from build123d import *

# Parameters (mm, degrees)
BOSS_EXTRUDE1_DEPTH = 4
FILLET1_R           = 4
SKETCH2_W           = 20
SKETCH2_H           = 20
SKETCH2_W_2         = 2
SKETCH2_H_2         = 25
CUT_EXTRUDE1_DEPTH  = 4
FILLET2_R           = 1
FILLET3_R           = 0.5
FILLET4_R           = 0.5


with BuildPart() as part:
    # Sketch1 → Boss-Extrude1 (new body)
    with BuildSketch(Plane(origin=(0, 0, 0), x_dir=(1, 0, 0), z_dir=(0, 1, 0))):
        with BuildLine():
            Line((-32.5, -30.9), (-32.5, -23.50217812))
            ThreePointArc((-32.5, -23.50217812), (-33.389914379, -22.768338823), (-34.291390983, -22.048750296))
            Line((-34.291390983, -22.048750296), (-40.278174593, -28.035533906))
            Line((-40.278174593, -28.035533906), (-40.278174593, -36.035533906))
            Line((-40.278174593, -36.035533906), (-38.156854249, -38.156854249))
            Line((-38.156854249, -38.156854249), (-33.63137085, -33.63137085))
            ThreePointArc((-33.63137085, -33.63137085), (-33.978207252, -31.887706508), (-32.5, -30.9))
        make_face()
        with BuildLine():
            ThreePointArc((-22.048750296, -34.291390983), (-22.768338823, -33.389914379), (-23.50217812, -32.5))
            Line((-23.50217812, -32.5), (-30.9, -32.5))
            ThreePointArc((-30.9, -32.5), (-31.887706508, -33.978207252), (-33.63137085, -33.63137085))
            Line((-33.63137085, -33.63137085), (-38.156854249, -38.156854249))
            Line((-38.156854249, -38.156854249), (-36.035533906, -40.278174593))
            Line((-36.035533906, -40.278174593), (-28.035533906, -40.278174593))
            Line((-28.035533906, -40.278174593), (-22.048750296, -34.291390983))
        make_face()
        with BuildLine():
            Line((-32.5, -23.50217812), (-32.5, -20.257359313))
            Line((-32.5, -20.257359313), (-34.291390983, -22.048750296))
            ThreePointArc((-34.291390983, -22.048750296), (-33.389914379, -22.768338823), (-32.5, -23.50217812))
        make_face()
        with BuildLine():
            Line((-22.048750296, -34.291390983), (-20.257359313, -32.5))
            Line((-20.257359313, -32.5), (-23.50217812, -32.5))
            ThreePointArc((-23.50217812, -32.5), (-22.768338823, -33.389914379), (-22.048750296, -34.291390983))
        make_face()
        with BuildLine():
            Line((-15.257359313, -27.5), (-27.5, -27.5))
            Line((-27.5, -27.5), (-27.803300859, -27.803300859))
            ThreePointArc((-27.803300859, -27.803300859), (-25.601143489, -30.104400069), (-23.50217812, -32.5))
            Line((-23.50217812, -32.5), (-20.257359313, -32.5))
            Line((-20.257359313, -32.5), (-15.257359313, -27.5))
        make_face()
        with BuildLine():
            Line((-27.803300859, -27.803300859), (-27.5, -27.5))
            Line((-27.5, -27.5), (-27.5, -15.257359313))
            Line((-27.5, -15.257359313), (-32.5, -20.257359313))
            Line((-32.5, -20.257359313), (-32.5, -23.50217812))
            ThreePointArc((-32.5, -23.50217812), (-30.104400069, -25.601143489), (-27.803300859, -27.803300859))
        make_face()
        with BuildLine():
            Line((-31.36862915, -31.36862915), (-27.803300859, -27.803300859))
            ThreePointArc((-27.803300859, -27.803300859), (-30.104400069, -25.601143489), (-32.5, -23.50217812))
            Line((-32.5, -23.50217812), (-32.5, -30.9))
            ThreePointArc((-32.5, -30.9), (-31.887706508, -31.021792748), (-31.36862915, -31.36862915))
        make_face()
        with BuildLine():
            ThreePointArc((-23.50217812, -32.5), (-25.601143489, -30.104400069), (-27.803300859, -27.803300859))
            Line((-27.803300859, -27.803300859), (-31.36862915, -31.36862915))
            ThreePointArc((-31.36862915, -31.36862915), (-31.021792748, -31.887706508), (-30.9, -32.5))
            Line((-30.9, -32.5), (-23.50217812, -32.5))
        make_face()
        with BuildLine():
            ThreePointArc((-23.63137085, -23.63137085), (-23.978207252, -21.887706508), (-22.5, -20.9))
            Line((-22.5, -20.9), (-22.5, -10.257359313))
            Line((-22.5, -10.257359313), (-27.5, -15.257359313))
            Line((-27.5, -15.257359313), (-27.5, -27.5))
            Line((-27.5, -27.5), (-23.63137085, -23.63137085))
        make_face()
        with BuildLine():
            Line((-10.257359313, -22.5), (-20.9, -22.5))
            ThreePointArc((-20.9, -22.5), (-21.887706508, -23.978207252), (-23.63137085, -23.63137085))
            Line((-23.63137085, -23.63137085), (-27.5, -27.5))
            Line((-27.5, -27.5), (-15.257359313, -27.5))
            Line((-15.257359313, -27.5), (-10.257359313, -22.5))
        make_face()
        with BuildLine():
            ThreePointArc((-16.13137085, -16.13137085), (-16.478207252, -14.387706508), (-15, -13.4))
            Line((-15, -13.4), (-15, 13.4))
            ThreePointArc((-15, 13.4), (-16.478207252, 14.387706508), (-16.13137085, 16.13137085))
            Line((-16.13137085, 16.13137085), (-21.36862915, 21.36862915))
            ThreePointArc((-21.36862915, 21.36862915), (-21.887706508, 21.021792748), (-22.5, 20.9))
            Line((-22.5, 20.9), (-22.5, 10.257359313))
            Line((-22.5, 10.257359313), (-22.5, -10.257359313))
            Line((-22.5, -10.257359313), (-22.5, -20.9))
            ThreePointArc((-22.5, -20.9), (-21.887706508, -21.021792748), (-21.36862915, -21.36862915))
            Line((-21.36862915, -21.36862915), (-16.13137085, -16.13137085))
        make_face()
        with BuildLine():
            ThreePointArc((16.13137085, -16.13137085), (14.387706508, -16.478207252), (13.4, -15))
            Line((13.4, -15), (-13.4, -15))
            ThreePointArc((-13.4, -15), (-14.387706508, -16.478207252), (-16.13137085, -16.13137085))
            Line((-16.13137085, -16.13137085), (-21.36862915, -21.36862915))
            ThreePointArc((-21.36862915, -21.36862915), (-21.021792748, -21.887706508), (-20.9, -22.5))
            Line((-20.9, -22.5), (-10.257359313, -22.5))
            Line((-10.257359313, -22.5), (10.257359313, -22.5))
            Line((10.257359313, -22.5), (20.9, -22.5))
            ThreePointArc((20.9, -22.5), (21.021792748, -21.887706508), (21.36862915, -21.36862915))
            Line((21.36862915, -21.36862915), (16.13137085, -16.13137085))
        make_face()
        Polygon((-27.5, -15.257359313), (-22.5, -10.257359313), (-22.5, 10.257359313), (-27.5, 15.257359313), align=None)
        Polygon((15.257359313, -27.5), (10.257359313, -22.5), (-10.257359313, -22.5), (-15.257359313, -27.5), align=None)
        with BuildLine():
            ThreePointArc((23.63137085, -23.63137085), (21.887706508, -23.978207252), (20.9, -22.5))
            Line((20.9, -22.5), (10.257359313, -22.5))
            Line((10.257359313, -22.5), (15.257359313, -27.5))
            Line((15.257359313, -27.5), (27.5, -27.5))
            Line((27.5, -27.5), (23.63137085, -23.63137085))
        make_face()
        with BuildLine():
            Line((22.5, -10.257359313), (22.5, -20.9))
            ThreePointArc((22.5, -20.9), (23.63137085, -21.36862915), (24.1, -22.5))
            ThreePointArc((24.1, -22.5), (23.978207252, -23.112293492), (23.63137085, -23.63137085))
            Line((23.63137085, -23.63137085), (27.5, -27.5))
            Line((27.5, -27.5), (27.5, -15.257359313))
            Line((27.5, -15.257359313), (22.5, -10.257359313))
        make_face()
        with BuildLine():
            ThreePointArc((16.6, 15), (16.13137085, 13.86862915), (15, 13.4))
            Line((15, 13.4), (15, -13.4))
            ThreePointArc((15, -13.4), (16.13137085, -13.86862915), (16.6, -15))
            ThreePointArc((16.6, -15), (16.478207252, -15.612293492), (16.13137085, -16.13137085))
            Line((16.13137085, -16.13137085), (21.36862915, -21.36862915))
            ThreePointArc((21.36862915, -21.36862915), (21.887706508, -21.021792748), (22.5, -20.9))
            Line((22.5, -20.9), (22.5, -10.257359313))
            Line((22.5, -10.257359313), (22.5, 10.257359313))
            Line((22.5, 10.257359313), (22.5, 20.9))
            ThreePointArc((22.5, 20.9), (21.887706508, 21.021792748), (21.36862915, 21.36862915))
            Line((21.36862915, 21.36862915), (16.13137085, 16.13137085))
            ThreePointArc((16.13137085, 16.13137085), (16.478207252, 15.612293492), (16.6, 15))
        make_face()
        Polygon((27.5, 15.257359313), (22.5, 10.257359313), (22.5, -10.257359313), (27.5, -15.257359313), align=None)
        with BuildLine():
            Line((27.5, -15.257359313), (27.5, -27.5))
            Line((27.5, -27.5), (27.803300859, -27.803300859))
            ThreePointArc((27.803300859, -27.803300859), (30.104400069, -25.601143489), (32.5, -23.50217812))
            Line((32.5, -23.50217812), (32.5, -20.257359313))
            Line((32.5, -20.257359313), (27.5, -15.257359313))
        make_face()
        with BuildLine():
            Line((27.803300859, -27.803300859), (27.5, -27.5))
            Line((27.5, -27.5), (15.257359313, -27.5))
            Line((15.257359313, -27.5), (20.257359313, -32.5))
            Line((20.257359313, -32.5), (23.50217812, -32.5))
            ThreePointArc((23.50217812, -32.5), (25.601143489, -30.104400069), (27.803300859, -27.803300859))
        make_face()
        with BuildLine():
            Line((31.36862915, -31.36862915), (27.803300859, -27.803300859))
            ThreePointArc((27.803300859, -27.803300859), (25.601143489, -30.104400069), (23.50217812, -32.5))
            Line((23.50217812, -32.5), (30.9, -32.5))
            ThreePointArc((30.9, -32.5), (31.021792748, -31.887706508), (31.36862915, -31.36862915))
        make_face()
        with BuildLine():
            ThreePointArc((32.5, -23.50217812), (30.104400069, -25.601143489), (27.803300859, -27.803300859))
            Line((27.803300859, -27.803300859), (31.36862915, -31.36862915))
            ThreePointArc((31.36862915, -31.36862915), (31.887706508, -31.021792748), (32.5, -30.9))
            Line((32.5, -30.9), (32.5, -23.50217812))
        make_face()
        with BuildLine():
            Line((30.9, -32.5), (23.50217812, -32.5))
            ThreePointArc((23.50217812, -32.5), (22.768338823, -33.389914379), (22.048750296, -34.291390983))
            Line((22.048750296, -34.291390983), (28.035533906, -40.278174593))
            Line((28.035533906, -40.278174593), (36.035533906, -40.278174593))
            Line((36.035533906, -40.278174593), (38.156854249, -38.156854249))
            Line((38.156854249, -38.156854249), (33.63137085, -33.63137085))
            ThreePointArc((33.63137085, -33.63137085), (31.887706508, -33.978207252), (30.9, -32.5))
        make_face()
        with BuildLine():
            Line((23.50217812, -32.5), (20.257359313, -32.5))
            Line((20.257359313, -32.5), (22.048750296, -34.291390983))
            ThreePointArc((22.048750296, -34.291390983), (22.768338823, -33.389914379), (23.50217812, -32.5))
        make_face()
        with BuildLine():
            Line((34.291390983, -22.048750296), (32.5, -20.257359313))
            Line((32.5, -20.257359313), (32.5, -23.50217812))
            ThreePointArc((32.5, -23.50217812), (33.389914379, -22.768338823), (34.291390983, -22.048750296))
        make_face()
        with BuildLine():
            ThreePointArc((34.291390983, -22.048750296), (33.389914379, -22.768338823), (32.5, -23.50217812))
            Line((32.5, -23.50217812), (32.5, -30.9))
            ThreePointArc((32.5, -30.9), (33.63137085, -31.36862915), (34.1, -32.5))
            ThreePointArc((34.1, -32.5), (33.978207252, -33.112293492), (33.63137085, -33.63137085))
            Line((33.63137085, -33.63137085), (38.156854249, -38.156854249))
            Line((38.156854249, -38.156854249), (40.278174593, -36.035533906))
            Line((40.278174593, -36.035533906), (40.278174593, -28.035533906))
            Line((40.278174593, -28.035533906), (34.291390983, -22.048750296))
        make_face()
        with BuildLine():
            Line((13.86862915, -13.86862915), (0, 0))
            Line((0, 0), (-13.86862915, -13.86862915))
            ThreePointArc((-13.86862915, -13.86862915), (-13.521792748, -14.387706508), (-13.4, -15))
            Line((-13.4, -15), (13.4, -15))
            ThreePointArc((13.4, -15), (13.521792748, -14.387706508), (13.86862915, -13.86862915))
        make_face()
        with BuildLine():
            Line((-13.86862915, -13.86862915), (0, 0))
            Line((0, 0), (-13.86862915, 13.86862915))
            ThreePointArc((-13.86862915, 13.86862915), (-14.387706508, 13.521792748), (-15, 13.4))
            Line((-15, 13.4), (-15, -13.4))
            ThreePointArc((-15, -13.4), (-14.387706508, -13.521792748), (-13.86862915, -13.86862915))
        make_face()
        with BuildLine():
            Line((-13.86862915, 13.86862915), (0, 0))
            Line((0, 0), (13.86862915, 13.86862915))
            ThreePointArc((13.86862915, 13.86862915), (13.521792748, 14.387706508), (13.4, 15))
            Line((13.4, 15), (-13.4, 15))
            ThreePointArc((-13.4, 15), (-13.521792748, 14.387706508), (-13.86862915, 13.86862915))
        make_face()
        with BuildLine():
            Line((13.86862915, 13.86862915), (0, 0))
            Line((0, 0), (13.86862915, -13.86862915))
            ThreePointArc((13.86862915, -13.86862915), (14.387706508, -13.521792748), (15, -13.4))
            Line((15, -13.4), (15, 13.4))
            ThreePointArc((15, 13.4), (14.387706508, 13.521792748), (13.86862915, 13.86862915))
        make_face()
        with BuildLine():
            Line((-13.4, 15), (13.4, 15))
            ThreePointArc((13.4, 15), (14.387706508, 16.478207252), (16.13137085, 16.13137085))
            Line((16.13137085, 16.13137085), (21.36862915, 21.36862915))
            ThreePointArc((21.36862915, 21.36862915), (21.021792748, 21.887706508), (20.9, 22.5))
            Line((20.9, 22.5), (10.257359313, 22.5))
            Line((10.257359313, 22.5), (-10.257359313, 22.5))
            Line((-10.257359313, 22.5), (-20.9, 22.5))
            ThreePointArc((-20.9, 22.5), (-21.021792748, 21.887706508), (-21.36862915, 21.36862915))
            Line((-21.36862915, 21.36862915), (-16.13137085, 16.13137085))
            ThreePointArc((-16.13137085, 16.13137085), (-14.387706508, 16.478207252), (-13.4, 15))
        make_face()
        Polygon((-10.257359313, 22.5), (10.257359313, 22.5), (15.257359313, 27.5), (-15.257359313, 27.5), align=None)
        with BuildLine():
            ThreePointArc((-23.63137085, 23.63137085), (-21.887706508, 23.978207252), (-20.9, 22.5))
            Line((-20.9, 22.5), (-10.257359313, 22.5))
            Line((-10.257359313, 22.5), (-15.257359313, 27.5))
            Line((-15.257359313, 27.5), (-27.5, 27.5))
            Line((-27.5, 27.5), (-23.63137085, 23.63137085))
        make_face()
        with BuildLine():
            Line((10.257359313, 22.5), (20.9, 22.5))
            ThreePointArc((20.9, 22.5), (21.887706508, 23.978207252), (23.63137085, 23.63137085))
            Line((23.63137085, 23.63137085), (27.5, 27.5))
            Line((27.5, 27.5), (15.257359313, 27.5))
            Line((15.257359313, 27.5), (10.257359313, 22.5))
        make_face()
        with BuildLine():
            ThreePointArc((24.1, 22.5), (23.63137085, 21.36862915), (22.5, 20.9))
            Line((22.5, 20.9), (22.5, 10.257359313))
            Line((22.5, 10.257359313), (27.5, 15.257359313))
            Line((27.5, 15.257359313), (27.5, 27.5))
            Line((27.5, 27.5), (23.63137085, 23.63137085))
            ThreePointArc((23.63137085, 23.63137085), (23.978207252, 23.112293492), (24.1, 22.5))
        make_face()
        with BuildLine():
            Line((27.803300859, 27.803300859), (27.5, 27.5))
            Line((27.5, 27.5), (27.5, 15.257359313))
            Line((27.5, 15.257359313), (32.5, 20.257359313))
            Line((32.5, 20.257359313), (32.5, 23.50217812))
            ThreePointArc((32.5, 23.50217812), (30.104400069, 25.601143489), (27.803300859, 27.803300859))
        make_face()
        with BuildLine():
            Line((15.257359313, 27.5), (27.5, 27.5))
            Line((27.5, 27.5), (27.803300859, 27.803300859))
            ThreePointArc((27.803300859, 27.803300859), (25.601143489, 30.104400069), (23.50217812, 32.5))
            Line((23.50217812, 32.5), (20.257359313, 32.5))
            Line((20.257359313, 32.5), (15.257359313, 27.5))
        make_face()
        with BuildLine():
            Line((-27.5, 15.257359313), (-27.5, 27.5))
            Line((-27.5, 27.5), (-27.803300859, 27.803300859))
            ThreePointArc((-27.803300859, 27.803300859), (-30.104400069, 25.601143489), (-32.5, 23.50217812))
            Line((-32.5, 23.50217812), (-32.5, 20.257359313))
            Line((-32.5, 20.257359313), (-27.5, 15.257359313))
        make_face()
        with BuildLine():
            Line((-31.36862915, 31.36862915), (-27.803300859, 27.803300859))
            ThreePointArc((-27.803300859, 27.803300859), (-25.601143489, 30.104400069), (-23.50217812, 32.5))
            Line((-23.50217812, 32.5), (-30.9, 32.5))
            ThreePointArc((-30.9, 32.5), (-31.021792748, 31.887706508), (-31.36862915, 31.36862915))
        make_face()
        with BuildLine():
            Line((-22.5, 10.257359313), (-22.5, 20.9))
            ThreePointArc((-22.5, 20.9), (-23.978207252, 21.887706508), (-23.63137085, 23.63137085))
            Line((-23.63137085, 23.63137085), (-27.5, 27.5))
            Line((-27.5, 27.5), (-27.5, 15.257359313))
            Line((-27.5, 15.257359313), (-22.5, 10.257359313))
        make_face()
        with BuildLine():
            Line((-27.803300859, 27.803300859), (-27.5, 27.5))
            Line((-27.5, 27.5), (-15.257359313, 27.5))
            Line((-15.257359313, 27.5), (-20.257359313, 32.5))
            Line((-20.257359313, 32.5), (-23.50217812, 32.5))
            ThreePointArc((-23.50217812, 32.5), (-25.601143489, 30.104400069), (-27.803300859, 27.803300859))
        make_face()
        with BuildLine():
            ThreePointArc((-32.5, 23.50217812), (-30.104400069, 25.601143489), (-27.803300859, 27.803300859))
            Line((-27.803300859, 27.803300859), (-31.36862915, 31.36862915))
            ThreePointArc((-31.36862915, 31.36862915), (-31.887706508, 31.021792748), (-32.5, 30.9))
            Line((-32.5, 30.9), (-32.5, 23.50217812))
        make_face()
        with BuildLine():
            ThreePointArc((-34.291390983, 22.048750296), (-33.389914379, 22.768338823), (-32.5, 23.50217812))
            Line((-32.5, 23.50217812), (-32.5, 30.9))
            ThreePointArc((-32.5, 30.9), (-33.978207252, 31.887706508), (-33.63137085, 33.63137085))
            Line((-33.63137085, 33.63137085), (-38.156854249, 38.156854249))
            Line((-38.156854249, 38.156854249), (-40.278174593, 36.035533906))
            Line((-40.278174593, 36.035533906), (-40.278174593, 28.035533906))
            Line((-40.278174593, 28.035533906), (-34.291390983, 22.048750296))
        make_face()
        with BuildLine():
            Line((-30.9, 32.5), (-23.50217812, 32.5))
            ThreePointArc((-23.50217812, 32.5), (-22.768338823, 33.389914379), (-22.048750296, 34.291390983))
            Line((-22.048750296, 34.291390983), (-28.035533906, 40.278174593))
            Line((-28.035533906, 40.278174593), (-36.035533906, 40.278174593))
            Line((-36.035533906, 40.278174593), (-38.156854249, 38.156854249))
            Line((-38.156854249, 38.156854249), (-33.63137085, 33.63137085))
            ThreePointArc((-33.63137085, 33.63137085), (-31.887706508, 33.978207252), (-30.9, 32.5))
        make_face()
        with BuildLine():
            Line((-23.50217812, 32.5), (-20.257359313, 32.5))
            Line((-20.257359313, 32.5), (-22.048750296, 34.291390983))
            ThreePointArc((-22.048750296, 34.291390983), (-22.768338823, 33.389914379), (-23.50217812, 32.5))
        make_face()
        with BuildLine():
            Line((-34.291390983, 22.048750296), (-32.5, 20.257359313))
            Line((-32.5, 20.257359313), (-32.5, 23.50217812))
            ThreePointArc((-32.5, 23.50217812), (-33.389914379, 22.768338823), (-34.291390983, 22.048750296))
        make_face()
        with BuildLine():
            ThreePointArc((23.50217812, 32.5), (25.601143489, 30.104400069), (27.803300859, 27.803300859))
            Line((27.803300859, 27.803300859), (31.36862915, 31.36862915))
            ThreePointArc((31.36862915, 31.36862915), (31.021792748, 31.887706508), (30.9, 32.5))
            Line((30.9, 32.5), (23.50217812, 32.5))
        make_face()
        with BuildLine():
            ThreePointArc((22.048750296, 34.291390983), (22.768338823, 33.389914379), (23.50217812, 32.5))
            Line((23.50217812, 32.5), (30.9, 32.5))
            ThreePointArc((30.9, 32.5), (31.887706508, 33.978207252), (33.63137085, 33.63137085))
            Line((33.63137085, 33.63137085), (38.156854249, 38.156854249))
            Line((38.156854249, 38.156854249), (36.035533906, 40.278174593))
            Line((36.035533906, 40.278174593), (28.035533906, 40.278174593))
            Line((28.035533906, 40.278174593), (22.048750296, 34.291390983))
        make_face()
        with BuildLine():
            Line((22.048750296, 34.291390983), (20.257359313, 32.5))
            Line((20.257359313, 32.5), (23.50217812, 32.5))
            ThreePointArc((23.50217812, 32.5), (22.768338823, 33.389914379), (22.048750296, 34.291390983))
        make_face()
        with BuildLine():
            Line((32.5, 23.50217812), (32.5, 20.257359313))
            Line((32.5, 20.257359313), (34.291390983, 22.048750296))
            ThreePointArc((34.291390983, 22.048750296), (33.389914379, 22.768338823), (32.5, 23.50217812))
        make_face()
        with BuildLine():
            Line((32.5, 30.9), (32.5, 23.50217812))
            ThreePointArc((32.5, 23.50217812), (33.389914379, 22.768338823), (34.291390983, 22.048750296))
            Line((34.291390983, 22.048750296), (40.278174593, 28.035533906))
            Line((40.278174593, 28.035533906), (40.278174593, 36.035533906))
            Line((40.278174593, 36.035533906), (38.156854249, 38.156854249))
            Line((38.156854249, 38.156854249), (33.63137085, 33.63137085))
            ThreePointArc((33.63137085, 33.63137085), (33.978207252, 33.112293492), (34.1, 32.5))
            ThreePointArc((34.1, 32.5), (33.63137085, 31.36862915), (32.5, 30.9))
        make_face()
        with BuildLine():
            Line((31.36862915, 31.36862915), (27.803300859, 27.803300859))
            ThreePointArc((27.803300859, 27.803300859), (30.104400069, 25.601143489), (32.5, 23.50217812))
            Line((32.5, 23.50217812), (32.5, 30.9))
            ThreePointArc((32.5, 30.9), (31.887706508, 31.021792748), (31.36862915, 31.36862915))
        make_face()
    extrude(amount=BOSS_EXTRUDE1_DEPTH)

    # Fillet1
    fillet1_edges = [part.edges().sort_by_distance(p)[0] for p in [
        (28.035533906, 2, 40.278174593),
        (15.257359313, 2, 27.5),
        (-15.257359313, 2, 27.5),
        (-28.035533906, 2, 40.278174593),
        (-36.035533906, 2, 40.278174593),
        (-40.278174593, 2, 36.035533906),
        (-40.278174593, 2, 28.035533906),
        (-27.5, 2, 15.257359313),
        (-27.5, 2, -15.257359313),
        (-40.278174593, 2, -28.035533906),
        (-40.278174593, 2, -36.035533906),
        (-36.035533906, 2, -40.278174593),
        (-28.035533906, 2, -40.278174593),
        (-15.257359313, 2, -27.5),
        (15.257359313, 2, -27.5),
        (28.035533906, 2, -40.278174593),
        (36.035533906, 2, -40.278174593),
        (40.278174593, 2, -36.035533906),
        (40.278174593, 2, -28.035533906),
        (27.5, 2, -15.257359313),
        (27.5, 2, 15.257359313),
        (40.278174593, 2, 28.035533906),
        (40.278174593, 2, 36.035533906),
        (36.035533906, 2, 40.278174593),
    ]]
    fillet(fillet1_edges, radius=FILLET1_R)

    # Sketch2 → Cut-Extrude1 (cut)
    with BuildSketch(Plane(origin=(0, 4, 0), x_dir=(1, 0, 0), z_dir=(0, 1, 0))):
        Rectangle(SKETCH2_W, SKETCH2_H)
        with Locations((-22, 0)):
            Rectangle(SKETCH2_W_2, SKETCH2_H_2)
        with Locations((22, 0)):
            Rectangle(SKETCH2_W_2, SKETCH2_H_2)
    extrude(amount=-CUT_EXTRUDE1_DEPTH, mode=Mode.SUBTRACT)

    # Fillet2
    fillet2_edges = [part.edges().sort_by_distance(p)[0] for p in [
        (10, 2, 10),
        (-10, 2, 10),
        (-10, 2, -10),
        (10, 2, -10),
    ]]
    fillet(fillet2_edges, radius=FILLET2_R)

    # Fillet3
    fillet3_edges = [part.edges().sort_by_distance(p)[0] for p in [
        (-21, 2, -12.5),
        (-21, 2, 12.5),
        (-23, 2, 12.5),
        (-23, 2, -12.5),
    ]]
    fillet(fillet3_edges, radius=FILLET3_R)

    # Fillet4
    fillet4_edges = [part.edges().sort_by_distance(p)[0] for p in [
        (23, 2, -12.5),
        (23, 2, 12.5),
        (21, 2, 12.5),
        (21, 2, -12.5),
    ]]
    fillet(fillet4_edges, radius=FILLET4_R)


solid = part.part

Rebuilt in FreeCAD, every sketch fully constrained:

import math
import FreeCAD as App
import Part
import Sketcher
from FreeCAD import Vector
Q = App.Units.Quantity


def edges_at(feature, points):
    """Names of the edges that pass closest to the given points."""
    edges = feature.Shape.Edges
    near = lambda p: min(range(len(edges)), key=lambda i: edges[i].distToShape(Part.Vertex(*p))[0])
    return sorted({f"Edge{near(p) + 1}" for p in points})

doc = App.newDocument("Part")
params = doc.addObject("Spreadsheet::Sheet", "Params")
for row, (alias, value) in enumerate([
    ("sketch1_radius", "1.6 mm"),
    ("sketch1_width", "8 mm"),
    ("sketch1_length", "3 mm"),
    ("pad1_length", "4 mm"),
    ("fillet_radius", "4 mm"),
    ("sketch2_width", "20 mm"),
    ("sketch2_width2", "2 mm"),
    ("sketch2_height", "25 mm"),
    ("pocket1_length", "4 mm"),
    ("fillet2_radius", "1 mm"),
    ("fillet3_radius", "0.5 mm"),
    ("fillet4_radius", "0.5 mm"),
], start=1):
    params.set(f"A{row}", alias)
    params.set(f"B{row}", "=" + value)
    params.setAlias(f"B{row}", alias)

body = doc.addObject("PartDesign::Body", "Body")

# Sketch on XZ plane
sketch1 = doc.addObject("Sketcher::SketchObject", "Sketch")
body.addObject(sketch1)
sketch1.AttachmentSupport = (doc.XZ_Plane, [""])
sketch1.MapMode = "FlatFace"
sketch1.addGeometry([
    Part.LineSegment(Vector(-40.278175, 28.035534, 0), Vector(-40.278175, 36.035534, 0)),  # 0
    Part.LineSegment(Vector(-40.278175, 36.035534, 0), Vector(-38.156854, 38.156854, 0)),  # 1
    Part.LineSegment(Vector(-38.156854, 38.156854, 0), Vector(-36.035534, 40.278175, 0)),  # 2
    Part.LineSegment(Vector(-36.035534, 40.278175, 0), Vector(-28.035534, 40.278175, 0)),  # 3
    Part.LineSegment(Vector(-28.035534, 40.278175, 0), Vector(-15.257359, 27.5, 0)),  # 4
    Part.LineSegment(Vector(-15.257359, 27.5, 0), Vector(15.257359, 27.5, 0)),  # 5
    Part.LineSegment(Vector(15.257359, 27.5, 0), Vector(28.035534, 40.278175, 0)),  # 6
    Part.LineSegment(Vector(28.035534, 40.278175, 0), Vector(36.035534, 40.278175, 0)),  # 7
    Part.LineSegment(Vector(36.035534, 40.278175, 0), Vector(38.156854, 38.156854, 0)),  # 8
    Part.LineSegment(Vector(38.156854, 38.156854, 0), Vector(40.278175, 36.035534, 0)),  # 9
    Part.LineSegment(Vector(40.278175, 36.035534, 0), Vector(40.278175, 28.035534, 0)),  # 10
    Part.LineSegment(Vector(40.278175, 28.035534, 0), Vector(27.5, 15.257359, 0)),  # 11
    Part.LineSegment(Vector(27.5, 15.257359, 0), Vector(27.5, -15.257359, 0)),  # 12
    Part.LineSegment(Vector(27.5, -15.257359, 0), Vector(40.278175, -28.035534, 0)),  # 13
    Part.LineSegment(Vector(40.278175, -28.035534, 0), Vector(40.278175, -36.035534, 0)),  # 14
    Part.LineSegment(Vector(40.278175, -36.035534, 0), Vector(38.156854, -38.156854, 0)),  # 15
    Part.LineSegment(Vector(38.156854, -38.156854, 0), Vector(36.035534, -40.278175, 0)),  # 16
    Part.LineSegment(Vector(36.035534, -40.278175, 0), Vector(28.035534, -40.278175, 0)),  # 17
    Part.LineSegment(Vector(28.035534, -40.278175, 0), Vector(15.257359, -27.5, 0)),  # 18
    Part.LineSegment(Vector(15.257359, -27.5, 0), Vector(-15.257359, -27.5, 0)),  # 19
    Part.LineSegment(Vector(-15.257359, -27.5, 0), Vector(-28.035534, -40.278175, 0)),  # 20
    Part.LineSegment(Vector(-28.035534, -40.278175, 0), Vector(-36.035534, -40.278175, 0)),  # 21
    Part.LineSegment(Vector(-36.035534, -40.278175, 0), Vector(-38.156854, -38.156854, 0)),  # 22
    Part.LineSegment(Vector(-38.156854, -38.156854, 0), Vector(-40.278175, -36.035534, 0)),  # 23
    Part.LineSegment(Vector(-40.278175, -36.035534, 0), Vector(-40.278175, -28.035534, 0)),  # 24
    Part.LineSegment(Vector(-40.278175, -28.035534, 0), Vector(-27.5, -15.257359, 0)),  # 25
    Part.LineSegment(Vector(-27.5, -15.257359, 0), Vector(-27.5, 15.257359, 0)),  # 26
    Part.LineSegment(Vector(-27.5, 15.257359, 0), Vector(-40.278175, 28.035534, 0)),  # 27
    Part.ArcOfCircle(Part.Circle(Vector(-32.5, 32.5, 0), Vector(0, 0, 1), 1.6), math.radians(0), math.radians(135)),  # 28
    Part.ArcOfCircle(Part.Circle(Vector(-32.5, 32.5, 0), Vector(0, 0, 1), 1.6), math.radians(135), math.radians(270)),  # 29
    Part.ArcOfCircle(Part.Circle(Vector(-32.5, 32.5, 0), Vector(0, 0, 1), 1.6), math.radians(-90), math.radians(-45)),  # 30
    Part.ArcOfCircle(Part.Circle(Vector(-32.5, 32.5, 0), Vector(0, 0, 1), 1.6), math.radians(-45), math.radians(0)),  # 31
    Part.ArcOfCircle(Part.Circle(Vector(32.5, -32.5, 0), Vector(0, 0, 1), 1.6), math.radians(135), math.radians(180)),  # 32
    Part.ArcOfCircle(Part.Circle(Vector(32.5, -32.5, 0), Vector(0, 0, 1), 1.6), math.radians(180), math.radians(315)),  # 33
    Part.ArcOfCircle(Part.Circle(Vector(32.5, -32.5, 0), Vector(0, 0, 1), 1.6), math.radians(-45), math.radians(0)),  # 34
    Part.ArcOfCircle(Part.Circle(Vector(32.5, -32.5, 0), Vector(0, 0, 1), 1.6), math.radians(0), math.radians(90)),  # 35
    Part.ArcOfCircle(Part.Circle(Vector(32.5, -32.5, 0), Vector(0, 0, 1), 1.6), math.radians(90), math.radians(135)),  # 36
    Part.ArcOfCircle(Part.Circle(Vector(-32.5, -32.5, 0), Vector(0, 0, 1), 1.6), math.radians(0), math.radians(45)),  # 37
    Part.ArcOfCircle(Part.Circle(Vector(-32.5, -32.5, 0), Vector(0, 0, 1), 1.6), math.radians(45), math.radians(90)),  # 38
    Part.ArcOfCircle(Part.Circle(Vector(-32.5, -32.5, 0), Vector(0, 0, 1), 1.6), math.radians(90), math.radians(225)),  # 39
    Part.ArcOfCircle(Part.Circle(Vector(-32.5, -32.5, 0), Vector(0, 0, 1), 1.6), math.radians(-135), math.radians(0)),  # 40
    Part.ArcOfCircle(Part.Circle(Vector(-22.5, -22.5, 0), Vector(0, 0, 1), 1.6), math.radians(-135), math.radians(0)),  # 41
    Part.ArcOfCircle(Part.Circle(Vector(-22.5, -22.5, 0), Vector(0, 0, 1), 1.6), math.radians(0), math.radians(45)),  # 42
    Part.ArcOfCircle(Part.Circle(Vector(-22.5, -22.5, 0), Vector(0, 0, 1), 1.6), math.radians(45), math.radians(90)),  # 43
    Part.ArcOfCircle(Part.Circle(Vector(-22.5, -22.5, 0), Vector(0, 0, 1), 1.6), math.radians(90), math.radians(225)),  # 44
    Part.ArcOfCircle(Part.Circle(Vector(22.5, -22.5, 0), Vector(0, 0, 1), 1.6), math.radians(90), math.radians(135)),  # 45
    Part.ArcOfCircle(Part.Circle(Vector(22.5, -22.5, 0), Vector(0, 0, 1), 1.6), math.radians(135), math.radians(180)),  # 46
    Part.ArcOfCircle(Part.Circle(Vector(22.5, -22.5, 0), Vector(0, 0, 1), 1.6), math.radians(180), math.radians(315)),  # 47
    Part.ArcOfCircle(Part.Circle(Vector(22.5, -22.5, 0), Vector(0, 0, 1), 1.6), math.radians(-45), math.radians(0)),  # 48
    Part.ArcOfCircle(Part.Circle(Vector(22.5, -22.5, 0), Vector(0, 0, 1), 1.6), math.radians(0), math.radians(90)),  # 49
    Part.ArcOfCircle(Part.Circle(Vector(15, -15, 0), Vector(0, 0, 1), 1.6), math.radians(-45), math.radians(0)),  # 50
    Part.ArcOfCircle(Part.Circle(Vector(15, -15, 0), Vector(0, 0, 1), 1.6), math.radians(0), math.radians(90)),  # 51
    Part.ArcOfCircle(Part.Circle(Vector(15, -15, 0), Vector(0, 0, 1), 1.6), math.radians(90), math.radians(135)),  # 52
    Part.ArcOfCircle(Part.Circle(Vector(15, -15, 0), Vector(0, 0, 1), 1.6), math.radians(135), math.radians(180)),  # 53
    Part.ArcOfCircle(Part.Circle(Vector(15, -15, 0), Vector(0, 0, 1), 1.6), math.radians(180), math.radians(315)),  # 54
    Part.ArcOfCircle(Part.Circle(Vector(-15, -15, 0), Vector(0, 0, 1), 1.6), math.radians(0), math.radians(45)),  # 55
    Part.ArcOfCircle(Part.Circle(Vector(-15, -15, 0), Vector(0, 0, 1), 1.6), math.radians(45), math.radians(90)),  # 56
    Part.ArcOfCircle(Part.Circle(Vector(-15, -15, 0), Vector(0, 0, 1), 1.6), math.radians(90), math.radians(225)),  # 57
    Part.ArcOfCircle(Part.Circle(Vector(-15, -15, 0), Vector(0, 0, 1), 1.6), math.radians(-135), math.radians(0)),  # 58
    Part.ArcOfCircle(Part.Circle(Vector(15, 15, 0), Vector(0, 0, 1), 1.6), math.radians(-90), math.radians(0)),  # 59
    Part.ArcOfCircle(Part.Circle(Vector(15, 15, 0), Vector(0, 0, 1), 1.6), math.radians(0), math.radians(45)),  # 60
    Part.ArcOfCircle(Part.Circle(Vector(15, 15, 0), Vector(0, 0, 1), 1.6), math.radians(45), math.radians(180)),  # 61
    Part.ArcOfCircle(Part.Circle(Vector(15, 15, 0), Vector(0, 0, 1), 1.6), math.radians(180), math.radians(225)),  # 62
    Part.ArcOfCircle(Part.Circle(Vector(15, 15, 0), Vector(0, 0, 1), 1.6), math.radians(-135), math.radians(-90)),  # 63
    Part.ArcOfCircle(Part.Circle(Vector(-15, 15, 0), Vector(0, 0, 1), 1.6), math.radians(-45), math.radians(0)),  # 64
    Part.ArcOfCircle(Part.Circle(Vector(-15, 15, 0), Vector(0, 0, 1), 1.6), math.radians(0), math.radians(135)),  # 65
    Part.ArcOfCircle(Part.Circle(Vector(-15, 15, 0), Vector(0, 0, 1), 1.6), math.radians(135), math.radians(270)),  # 66
    Part.ArcOfCircle(Part.Circle(Vector(-15, 15, 0), Vector(0, 0, 1), 1.6), math.radians(-90), math.radians(-45)),  # 67
    Part.ArcOfCircle(Part.Circle(Vector(32.5, 32.5, 0), Vector(0, 0, 1), 1.6), math.radians(45), math.radians(180)),  # 68
    Part.ArcOfCircle(Part.Circle(Vector(32.5, 32.5, 0), Vector(0, 0, 1), 1.6), math.radians(180), math.radians(225)),  # 69
    Part.ArcOfCircle(Part.Circle(Vector(32.5, 32.5, 0), Vector(0, 0, 1), 1.6), math.radians(-135), math.radians(-90)),  # 70
    Part.ArcOfCircle(Part.Circle(Vector(32.5, 32.5, 0), Vector(0, 0, 1), 1.6), math.radians(-90), math.radians(0)),  # 71
    Part.ArcOfCircle(Part.Circle(Vector(32.5, 32.5, 0), Vector(0, 0, 1), 1.6), math.radians(0), math.radians(45)),  # 72
    Part.ArcOfCircle(Part.Circle(Vector(22.5, 22.5, 0), Vector(0, 0, 1), 1.6), math.radians(-90), math.radians(0)),  # 73
    Part.ArcOfCircle(Part.Circle(Vector(22.5, 22.5, 0), Vector(0, 0, 1), 1.6), math.radians(0), math.radians(45)),  # 74
    Part.ArcOfCircle(Part.Circle(Vector(22.5, 22.5, 0), Vector(0, 0, 1), 1.6), math.radians(45), math.radians(180)),  # 75
    Part.ArcOfCircle(Part.Circle(Vector(22.5, 22.5, 0), Vector(0, 0, 1), 1.6), math.radians(180), math.radians(225)),  # 76
    Part.ArcOfCircle(Part.Circle(Vector(22.5, 22.5, 0), Vector(0, 0, 1), 1.6), math.radians(-135), math.radians(-90)),  # 77
    Part.ArcOfCircle(Part.Circle(Vector(-22.5, 22.5, 0), Vector(0, 0, 1), 1.6), math.radians(0), math.radians(135)),  # 78
    Part.ArcOfCircle(Part.Circle(Vector(-22.5, 22.5, 0), Vector(0, 0, 1), 1.6), math.radians(135), math.radians(270)),  # 79
    Part.ArcOfCircle(Part.Circle(Vector(-22.5, 22.5, 0), Vector(0, 0, 1), 1.6), math.radians(-90), math.radians(-45)),  # 80
    Part.ArcOfCircle(Part.Circle(Vector(-22.5, 22.5, 0), Vector(0, 0, 1), 1.6), math.radians(-45), math.radians(0)),  # 81
], False)
sketch1.addConstraint([
    Sketcher.Constraint("Coincident", 0, 2, 1, 1),
    Sketcher.Constraint("Coincident", 1, 2, 2, 1),
    Sketcher.Constraint("Coincident", 2, 2, 3, 1),
    Sketcher.Constraint("Coincident", 3, 2, 4, 1),
    Sketcher.Constraint("Coincident", 4, 2, 5, 1),
    Sketcher.Constraint("Coincident", 5, 2, 6, 1),
    Sketcher.Constraint("Coincident", 6, 2, 7, 1),
    Sketcher.Constraint("Coincident", 7, 2, 8, 1),
    Sketcher.Constraint("Coincident", 8, 2, 9, 1),
    Sketcher.Constraint("Coincident", 9, 2, 10, 1),
    Sketcher.Constraint("Coincident", 10, 2, 11, 1),
    Sketcher.Constraint("Coincident", 11, 2, 12, 1),
    Sketcher.Constraint("Coincident", 12, 2, 13, 1),
    Sketcher.Constraint("Coincident", 13, 2, 14, 1),
    Sketcher.Constraint("Coincident", 14, 2, 15, 1),
    Sketcher.Constraint("Coincident", 15, 2, 16, 1),
    Sketcher.Constraint("Coincident", 16, 2, 17, 1),
    Sketcher.Constraint("Coincident", 17, 2, 18, 1),
    Sketcher.Constraint("Coincident", 18, 2, 19, 1),
    Sketcher.Constraint("Coincident", 19, 2, 20, 1),
    Sketcher.Constraint("Coincident", 20, 2, 21, 1),
    Sketcher.Constraint("Coincident", 21, 2, 22, 1),
    Sketcher.Constraint("Coincident", 22, 2, 23, 1),
    Sketcher.Constraint("Coincident", 23, 2, 24, 1),
    Sketcher.Constraint("Coincident", 24, 2, 25, 1),
    Sketcher.Constraint("Coincident", 25, 2, 26, 1),
    Sketcher.Constraint("Coincident", 26, 2, 27, 1),
    Sketcher.Constraint("Coincident", 27, 2, 0, 1),
    Sketcher.Constraint("Tangent", 28, 2, 29, 1),
    Sketcher.Constraint("Tangent", 29, 2, 30, 1),
    Sketcher.Constraint("Tangent", 30, 2, 31, 1),
    Sketcher.Constraint("Tangent", 31, 2, 28, 1),
    Sketcher.Constraint("Tangent", 32, 2, 33, 1),
    Sketcher.Constraint("Tangent", 33, 2, 34, 1),
    Sketcher.Constraint("Tangent", 34, 2, 35, 1),
    Sketcher.Constraint("Tangent", 35, 2, 36, 1),
    Sketcher.Constraint("Tangent", 36, 2, 32, 1),
    Sketcher.Constraint("Tangent", 37, 2, 38, 1),
    Sketcher.Constraint("Tangent", 38, 2, 39, 1),
    Sketcher.Constraint("Tangent", 39, 2, 40, 1),
    Sketcher.Constraint("Tangent", 40, 2, 37, 1),
    Sketcher.Constraint("Tangent", 41, 2, 42, 1),
    Sketcher.Constraint("Tangent", 42, 2, 43, 1),
    Sketcher.Constraint("Tangent", 43, 2, 44, 1),
    Sketcher.Constraint("Tangent", 44, 2, 41, 1),
    Sketcher.Constraint("Tangent", 45, 2, 46, 1),
    Sketcher.Constraint("Tangent", 46, 2, 47, 1),
    Sketcher.Constraint("Tangent", 47, 2, 48, 1),
    Sketcher.Constraint("Tangent", 48, 2, 49, 1),
    Sketcher.Constraint("Tangent", 49, 2, 45, 1),
    Sketcher.Constraint("Tangent", 50, 2, 51, 1),
    Sketcher.Constraint("Tangent", 51, 2, 52, 1),
    Sketcher.Constraint("Tangent", 52, 2, 53, 1),
    Sketcher.Constraint("Tangent", 53, 2, 54, 1),
    Sketcher.Constraint("Tangent", 54, 2, 50, 1),
    Sketcher.Constraint("Tangent", 55, 2, 56, 1),
    Sketcher.Constraint("Tangent", 56, 2, 57, 1),
    Sketcher.Constraint("Tangent", 57, 2, 58, 1),
    Sketcher.Constraint("Tangent", 58, 2, 55, 1),
    Sketcher.Constraint("Tangent", 59, 2, 60, 1),
    Sketcher.Constraint("Tangent", 60, 2, 61, 1),
    Sketcher.Constraint("Tangent", 61, 2, 62, 1),
    Sketcher.Constraint("Tangent", 62, 2, 63, 1),
    Sketcher.Constraint("Tangent", 63, 2, 59, 1),
    Sketcher.Constraint("Tangent", 64, 2, 65, 1),
    Sketcher.Constraint("Tangent", 65, 2, 66, 1),
    Sketcher.Constraint("Tangent", 66, 2, 67, 1),
    Sketcher.Constraint("Tangent", 67, 2, 64, 1),
    Sketcher.Constraint("Tangent", 68, 2, 69, 1),
    Sketcher.Constraint("Tangent", 69, 2, 70, 1),
    Sketcher.Constraint("Tangent", 70, 2, 71, 1),
    Sketcher.Constraint("Tangent", 71, 2, 72, 1),
    Sketcher.Constraint("Tangent", 72, 2, 68, 1),
    Sketcher.Constraint("Tangent", 73, 2, 74, 1),
    Sketcher.Constraint("Tangent", 74, 2, 75, 1),
    Sketcher.Constraint("Tangent", 75, 2, 76, 1),
    Sketcher.Constraint("Tangent", 76, 2, 77, 1),
    Sketcher.Constraint("Tangent", 77, 2, 73, 1),
    Sketcher.Constraint("Tangent", 78, 2, 79, 1),
    Sketcher.Constraint("Tangent", 79, 2, 80, 1),
    Sketcher.Constraint("Tangent", 80, 2, 81, 1),
    Sketcher.Constraint("Tangent", 81, 2, 78, 1),
    Sketcher.Constraint("Vertical", 0),
    Sketcher.Constraint("Horizontal", 3),
    Sketcher.Constraint("Horizontal", 5),
    Sketcher.Constraint("Horizontal", 7),
    Sketcher.Constraint("Vertical", 10),
    Sketcher.Constraint("Vertical", 12),
    Sketcher.Constraint("Vertical", 14),
    Sketcher.Constraint("Horizontal", 17),
    Sketcher.Constraint("Horizontal", 19),
    Sketcher.Constraint("Horizontal", 21),
    Sketcher.Constraint("Vertical", 24),
    Sketcher.Constraint("Vertical", 26),
    Sketcher.Constraint("Coincident", 34, 3, 32, 3),
    Sketcher.Constraint("Coincident", 47, 3, 45, 3),
    Sketcher.Constraint("Coincident", 52, 3, 50, 3),
    Sketcher.Constraint("Coincident", 61, 3, 59, 3),
    Sketcher.Constraint("Coincident", 70, 3, 68, 3),
    Sketcher.Constraint("Coincident", 75, 3, 73, 3),
    Sketcher.Constraint("Equal", 28, 29),
    Sketcher.Constraint("Equal", 31, 32),
    Sketcher.Constraint("Equal", 36, 37),
    Sketcher.Constraint("Equal", 37, 38),
    Sketcher.Constraint("Equal", 40, 41),
    Sketcher.Constraint("Equal", 41, 42),
    Sketcher.Constraint("Equal", 44, 45),
    Sketcher.Constraint("Equal", 49, 50),
    Sketcher.Constraint("Equal", 54, 55),
    Sketcher.Constraint("Equal", 55, 56),
    Sketcher.Constraint("Equal", 58, 59),
    Sketcher.Constraint("Equal", 63, 64),
    Sketcher.Constraint("Equal", 64, 65),
    Sketcher.Constraint("Equal", 67, 68),
    Sketcher.Constraint("Equal", 72, 73),
    Sketcher.Constraint("Equal", 77, 78),
    Sketcher.Constraint("Equal", 78, 79),
    Sketcher.Constraint("Symmetric", 28, 3, 32, 3, -1, 1),
    Sketcher.Constraint("Symmetric", 55, 3, 59, 3, -1, 1),
    Sketcher.Constraint("Symmetric", 50, 3, 64, 3, -1, 1),
    Sketcher.Constraint("Symmetric", 37, 3, 68, 3, -1, 1),
    Sketcher.Constraint("Symmetric", 41, 3, 73, 3, -1, 1),
    Sketcher.Constraint("Symmetric", 45, 3, 78, 3, -1, 1),
    Sketcher.Constraint("Symmetric", 0, 2, 14, 2, -1, 1),
    Sketcher.Constraint("Symmetric", 1, 2, 15, 2, -1, 1),
    Sketcher.Constraint("Symmetric", 2, 2, 16, 2, -1, 1),
    Sketcher.Constraint("Symmetric", 4, 2, 18, 2, -1, 1),
    Sketcher.Constraint("Symmetric", 6, 2, 20, 2, -1, 1),
    Sketcher.Constraint("Symmetric", 8, 2, 22, 2, -1, 1),
    Sketcher.Constraint("Symmetric", 9, 2, 23, 2, -1, 1),
    Sketcher.Constraint("Symmetric", 11, 2, 25, 2, -1, 1),
    Sketcher.Constraint("Symmetric", 32, 3, 37, 3, -2),
    Sketcher.Constraint("Symmetric", 41, 3, 45, 3, -2),
    Sketcher.Constraint("Symmetric", 50, 3, 55, 3, -2),
    Sketcher.Constraint("Symmetric", 3, 2, 6, 2, -2),
    Sketcher.Constraint("Symmetric", 1, 2, 8, 2, -2),
    Sketcher.Constraint("Symmetric", 0, 2, 9, 2, -2),
    Sketcher.Constraint("Parallel", 1, 2),
    Sketcher.Constraint("Perpendicular", 2, 4),
    Sketcher.Constraint("Perpendicular", 4, 6),
    Sketcher.Constraint("Perpendicular", 6, 8),
    Sketcher.Constraint("Parallel", 8, 9),
    Sketcher.Constraint("Perpendicular", 9, 11),
    Sketcher.Constraint("Perpendicular", 11, 13),
    Sketcher.Constraint("Perpendicular", 16, 18),
    Sketcher.Constraint("Perpendicular", 18, 20),
    Sketcher.Constraint("Perpendicular", 20, 22),
    Sketcher.Constraint("Perpendicular", 23, 25),
    Sketcher.Constraint("Perpendicular", 25, 27),
    Sketcher.Constraint("Horizontal", 13, 2, 24, 2),
    Sketcher.Constraint("Horizontal", 11, 2, 26, 2),
    Sketcher.Constraint("Horizontal", 72, 3, 31, 2),
    Sketcher.Constraint("Horizontal", 40, 3, 32, 2),
    Sketcher.Constraint("Horizontal", 32, 2, 34, 2),
    Sketcher.Constraint("Horizontal", 36, 2, 37, 2),
    Sketcher.Constraint("Horizontal", 33, 2, 39, 2),
    Sketcher.Constraint("Horizontal", 34, 2, 40, 2),
    Sketcher.Constraint("Horizontal", 49, 3, 41, 2),
    Sketcher.Constraint("Horizontal", 42, 2, 45, 2),
    Sketcher.Constraint("Horizontal", 41, 2, 46, 2),
    Sketcher.Constraint("Horizontal", 44, 2, 47, 2),
    Sketcher.Constraint("Horizontal", 46, 2, 48, 2),
    Sketcher.Constraint("Horizontal", 58, 3, 50, 2),
    Sketcher.Constraint("Horizontal", 50, 2, 53, 2),
    Sketcher.Constraint("Horizontal", 52, 2, 55, 2),
    Sketcher.Constraint("Horizontal", 54, 2, 57, 2),
    Sketcher.Constraint("Horizontal", 53, 2, 58, 2),
    Sketcher.Constraint("Horizontal", 67, 3, 59, 2),
    Sketcher.Constraint("Horizontal", 59, 2, 61, 2),
    Sketcher.Constraint("Horizontal", 61, 2, 64, 2),
    Sketcher.Constraint("Horizontal", 60, 2, 65, 2),
    Sketcher.Constraint("Horizontal", 62, 2, 67, 2),
    Sketcher.Constraint("Horizontal", 31, 2, 68, 2),
    Sketcher.Constraint("Horizontal", 30, 2, 69, 2),
    Sketcher.Constraint("Horizontal", 68, 2, 71, 2),
    Sketcher.Constraint("Horizontal", 28, 2, 72, 2),
    Sketcher.Constraint("Horizontal", 81, 3, 73, 2),
    Sketcher.Constraint("Horizontal", 73, 2, 75, 2),
    Sketcher.Constraint("Horizontal", 74, 2, 78, 2),
    Sketcher.Constraint("Horizontal", 76, 2, 80, 2),
    Sketcher.Constraint("Horizontal", 75, 2, 81, 2),
    Sketcher.Constraint("Vertical", 40, 3, 29, 2),
    Sketcher.Constraint("Vertical", 72, 3, 35, 2),
    Sketcher.Constraint("Vertical", 30, 2, 37, 2),
    Sketcher.Constraint("Vertical", 29, 2, 38, 2),
    Sketcher.Constraint("Vertical", 28, 2, 39, 2),
    Sketcher.Constraint("Vertical", 81, 3, 43, 2),
    Sketcher.Constraint("Vertical", 77, 3, 49, 2),
    Sketcher.Constraint("Vertical", 63, 3, 51, 2),
    Sketcher.Constraint("Vertical", 67, 3, 56, 2),
    Sketcher.Constraint("Vertical", 54, 2, 60, 2),
    Sketcher.Constraint("Vertical", 52, 2, 62, 2),
    Sketcher.Constraint("Vertical", 51, 2, 63, 2),
    Sketcher.Constraint("Vertical", 56, 2, 66, 2),
    Sketcher.Constraint("Vertical", 35, 2, 70, 2),
    Sketcher.Constraint("Vertical", 47, 2, 74, 2),
    Sketcher.Constraint("Vertical", 45, 2, 76, 2),
    Sketcher.Constraint("Vertical", 49, 2, 77, 2),
    Sketcher.Constraint("Vertical", 43, 2, 79, 2),
    Sketcher.Constraint("Equal", 21, 0),
    Sketcher.Constraint("Equal", 19, 12),
    Sketcher.Constraint("Equal", 1, 2),
    Sketcher.Constraint("Equal", 6, 11),
    Sketcher.Constraint("Radius", 28, Q("1.6 mm")),
    Sketcher.Constraint("DistanceX", 3, 1, 3, 2, Q("8 mm")),
    Sketcher.Constraint("Distance", 1, Q("3 mm")),
    Sketcher.Constraint("DistanceX", -1, 1, 50, 3, Q("15 mm")),
    Sketcher.Constraint("DistanceY", 50, 3, -1, 1, Q("15 mm")),
    Sketcher.Constraint("DistanceX", 28, 3, -1, 1, Q("32.5 mm")),
    Sketcher.Constraint("DistanceY", -1, 1, 28, 3, Q("32.5 mm")),
    Sketcher.Constraint("DistanceX", 41, 3, -1, 1, Q("22.5 mm")),
    Sketcher.Constraint("DistanceY", 41, 3, -1, 1, Q("22.5 mm")),
    Sketcher.Constraint("DistanceY", -1, 1, 4, 2, Q("27.5 mm")),
    Sketcher.Constraint("DistanceX", 28, 2, -1, 1, Q("33.631371 mm")),
    Sketcher.Constraint("DistanceX", 30, 2, -1, 1, Q("31.368629 mm")),
    Sketcher.Constraint("DistanceX", 42, 2, -1, 1, Q("21.368629 mm")),
    Sketcher.Constraint("DistanceX", 44, 2, -1, 1, Q("23.631371 mm")),
    Sketcher.Constraint("DistanceX", -1, 1, 52, 2, Q("13.868629 mm")),
    Sketcher.Constraint("DistanceX", -1, 1, 54, 2, Q("16.131371 mm")),
    Sketcher.Constraint("Distance", 4, Q("18.071068 mm")),
])
sketch1.setExpression("Constraints[203]", "Params.sketch1_radius")
sketch1.setExpression("Constraints[204]", "Params.sketch1_width")
sketch1.setExpression("Constraints[205]", "Params.sketch1_length")
pad1 = doc.addObject("PartDesign::Pad", "Pad")
body.addObject(pad1)
pad1.Profile = sketch1
pad1.setExpression("Length", "Params.pad1_length")
pad1.Reversed = True
doc.recompute()

fillet = doc.addObject("PartDesign::Fillet", "Fillet")
body.addObject(fillet)
fillet.Base = (pad1, edges_at(pad1, [
    (28.036, 2, 40.278),
    (15.257, 2, 27.5),
    (-15.257, 2, 27.5),
    (-28.036, 2, 40.278),
    (-36.036, 2, 40.278),
    (-40.278, 2, 36.036),
    (-40.278, 2, 28.036),
    (-27.5, 2, 15.257),
    (-27.5, 2, -15.257),
    (-40.278, 2, -28.036),
    (-40.278, 2, -36.036),
    (-36.036, 2, -40.278),
    (-28.036, 2, -40.278),
    (-15.257, 2, -27.5),
    (15.257, 2, -27.5),
    (28.036, 2, -40.278),
    (36.036, 2, -40.278),
    (40.278, 2, -36.036),
    (40.278, 2, -28.036),
    (27.5, 2, -15.257),
    (27.5, 2, 15.257),
    (40.278, 2, 28.036),
    (40.278, 2, 36.036),
    (36.036, 2, 40.278),
]))
fillet.setExpression("Radius", "Params.fillet_radius")

# Sketch on XZ plane
sketch2 = doc.addObject("Sketcher::SketchObject", "Sketch001")
body.addObject(sketch2)
sketch2.AttachmentSupport = (doc.XZ_Plane, [""])
sketch2.MapMode = "FlatFace"
sketch2.AttachmentOffset = App.Placement(Vector(0, 0, -4), App.Rotation())
sketch2.addGeometry([
    Part.LineSegment(Vector(-10, -10, 0), Vector(-10, 10, 0)),  # 0
    Part.LineSegment(Vector(-10, 10, 0), Vector(10, 10, 0)),  # 1
    Part.LineSegment(Vector(10, 10, 0), Vector(10, -10, 0)),  # 2
    Part.LineSegment(Vector(10, -10, 0), Vector(-10, -10, 0)),  # 3
    Part.LineSegment(Vector(-23, -12.5, 0), Vector(-23, 12.5, 0)),  # 4
    Part.LineSegment(Vector(-23, 12.5, 0), Vector(-21, 12.5, 0)),  # 5
    Part.LineSegment(Vector(-21, 12.5, 0), Vector(-21, -12.5, 0)),  # 6
    Part.LineSegment(Vector(-21, -12.5, 0), Vector(-23, -12.5, 0)),  # 7
    Part.LineSegment(Vector(21, -12.5, 0), Vector(21, 12.5, 0)),  # 8
    Part.LineSegment(Vector(21, 12.5, 0), Vector(23, 12.5, 0)),  # 9
    Part.LineSegment(Vector(23, 12.5, 0), Vector(23, -12.5, 0)),  # 10
    Part.LineSegment(Vector(23, -12.5, 0), Vector(21, -12.5, 0)),  # 11
], False)
sketch2.addConstraint([
    Sketcher.Constraint("Coincident", 0, 2, 1, 1),
    Sketcher.Constraint("Coincident", 1, 2, 2, 1),
    Sketcher.Constraint("Coincident", 2, 2, 3, 1),
    Sketcher.Constraint("Coincident", 3, 2, 0, 1),
    Sketcher.Constraint("Coincident", 4, 2, 5, 1),
    Sketcher.Constraint("Coincident", 5, 2, 6, 1),
    Sketcher.Constraint("Coincident", 6, 2, 7, 1),
    Sketcher.Constraint("Coincident", 7, 2, 4, 1),
    Sketcher.Constraint("Coincident", 8, 2, 9, 1),
    Sketcher.Constraint("Coincident", 9, 2, 10, 1),
    Sketcher.Constraint("Coincident", 10, 2, 11, 1),
    Sketcher.Constraint("Coincident", 11, 2, 8, 1),
    Sketcher.Constraint("Vertical", 0),
    Sketcher.Constraint("Horizontal", 1),
    Sketcher.Constraint("Vertical", 2),
    Sketcher.Constraint("Horizontal", 3),
    Sketcher.Constraint("Vertical", 4),
    Sketcher.Constraint("Horizontal", 5),
    Sketcher.Constraint("Vertical", 6),
    Sketcher.Constraint("Horizontal", 7),
    Sketcher.Constraint("Vertical", 8),
    Sketcher.Constraint("Horizontal", 9),
    Sketcher.Constraint("Vertical", 10),
    Sketcher.Constraint("Horizontal", 11),
    Sketcher.Constraint("Symmetric", 0, 2, 2, 2, -1, 1),
    Sketcher.Constraint("Symmetric", 6, 2, 8, 2, -1, 1),
    Sketcher.Constraint("Symmetric", 4, 2, 10, 2, -1, 1),
    Sketcher.Constraint("Horizontal", 5, 2, 8, 2),
    Sketcher.Constraint("Equal", 3, 0),
    Sketcher.Constraint("DistanceX", 1, 1, 1, 2, Q("20 mm")),
    Sketcher.Constraint("DistanceX", 5, 1, 5, 2, Q("2 mm")),
    Sketcher.Constraint("DistanceY", 4, 1, 4, 2, Q("25 mm")),
    Sketcher.Constraint("DistanceX", 4, 2, -1, 1, Q("23 mm")),
])
sketch2.setExpression("Constraints[29]", "Params.sketch2_width")
sketch2.setExpression("Constraints[30]", "Params.sketch2_width2")
sketch2.setExpression("Constraints[31]", "Params.sketch2_height")
pocket1 = doc.addObject("PartDesign::Pocket", "Pocket")
body.addObject(pocket1)
pocket1.Profile = sketch2
pocket1.setExpression("Length", "Params.pocket1_length")
pocket1.Reversed = True
doc.recompute()

fillet2 = doc.addObject("PartDesign::Fillet", "Fillet001")
body.addObject(fillet2)
fillet2.Base = (pocket1, edges_at(pocket1, [
    (10, 2, 10),
    (-10, 2, 10),
    (-10, 2, -10),
    (10, 2, -10),
]))
fillet2.setExpression("Radius", "Params.fillet2_radius")
doc.recompute()

fillet3 = doc.addObject("PartDesign::Fillet", "Fillet002")
body.addObject(fillet3)
fillet3.Base = (fillet2, edges_at(fillet2, [
    (-21, 2, -12.5),
    (-21, 2, 12.5),
    (-23, 2, 12.5),
    (-23, 2, -12.5),
]))
fillet3.setExpression("Radius", "Params.fillet3_radius")
doc.recompute()

fillet4 = doc.addObject("PartDesign::Fillet", "Fillet003")
body.addObject(fillet4)
fillet4.Base = (fillet3, edges_at(fillet3, [
    (23, 2, -12.5),
    (23, 2, 12.5),
    (21, 2, 12.5),
    (21, 2, -12.5),
]))
fillet4.setExpression("Radius", "Params.fillet4_radius")

doc.recompute()
